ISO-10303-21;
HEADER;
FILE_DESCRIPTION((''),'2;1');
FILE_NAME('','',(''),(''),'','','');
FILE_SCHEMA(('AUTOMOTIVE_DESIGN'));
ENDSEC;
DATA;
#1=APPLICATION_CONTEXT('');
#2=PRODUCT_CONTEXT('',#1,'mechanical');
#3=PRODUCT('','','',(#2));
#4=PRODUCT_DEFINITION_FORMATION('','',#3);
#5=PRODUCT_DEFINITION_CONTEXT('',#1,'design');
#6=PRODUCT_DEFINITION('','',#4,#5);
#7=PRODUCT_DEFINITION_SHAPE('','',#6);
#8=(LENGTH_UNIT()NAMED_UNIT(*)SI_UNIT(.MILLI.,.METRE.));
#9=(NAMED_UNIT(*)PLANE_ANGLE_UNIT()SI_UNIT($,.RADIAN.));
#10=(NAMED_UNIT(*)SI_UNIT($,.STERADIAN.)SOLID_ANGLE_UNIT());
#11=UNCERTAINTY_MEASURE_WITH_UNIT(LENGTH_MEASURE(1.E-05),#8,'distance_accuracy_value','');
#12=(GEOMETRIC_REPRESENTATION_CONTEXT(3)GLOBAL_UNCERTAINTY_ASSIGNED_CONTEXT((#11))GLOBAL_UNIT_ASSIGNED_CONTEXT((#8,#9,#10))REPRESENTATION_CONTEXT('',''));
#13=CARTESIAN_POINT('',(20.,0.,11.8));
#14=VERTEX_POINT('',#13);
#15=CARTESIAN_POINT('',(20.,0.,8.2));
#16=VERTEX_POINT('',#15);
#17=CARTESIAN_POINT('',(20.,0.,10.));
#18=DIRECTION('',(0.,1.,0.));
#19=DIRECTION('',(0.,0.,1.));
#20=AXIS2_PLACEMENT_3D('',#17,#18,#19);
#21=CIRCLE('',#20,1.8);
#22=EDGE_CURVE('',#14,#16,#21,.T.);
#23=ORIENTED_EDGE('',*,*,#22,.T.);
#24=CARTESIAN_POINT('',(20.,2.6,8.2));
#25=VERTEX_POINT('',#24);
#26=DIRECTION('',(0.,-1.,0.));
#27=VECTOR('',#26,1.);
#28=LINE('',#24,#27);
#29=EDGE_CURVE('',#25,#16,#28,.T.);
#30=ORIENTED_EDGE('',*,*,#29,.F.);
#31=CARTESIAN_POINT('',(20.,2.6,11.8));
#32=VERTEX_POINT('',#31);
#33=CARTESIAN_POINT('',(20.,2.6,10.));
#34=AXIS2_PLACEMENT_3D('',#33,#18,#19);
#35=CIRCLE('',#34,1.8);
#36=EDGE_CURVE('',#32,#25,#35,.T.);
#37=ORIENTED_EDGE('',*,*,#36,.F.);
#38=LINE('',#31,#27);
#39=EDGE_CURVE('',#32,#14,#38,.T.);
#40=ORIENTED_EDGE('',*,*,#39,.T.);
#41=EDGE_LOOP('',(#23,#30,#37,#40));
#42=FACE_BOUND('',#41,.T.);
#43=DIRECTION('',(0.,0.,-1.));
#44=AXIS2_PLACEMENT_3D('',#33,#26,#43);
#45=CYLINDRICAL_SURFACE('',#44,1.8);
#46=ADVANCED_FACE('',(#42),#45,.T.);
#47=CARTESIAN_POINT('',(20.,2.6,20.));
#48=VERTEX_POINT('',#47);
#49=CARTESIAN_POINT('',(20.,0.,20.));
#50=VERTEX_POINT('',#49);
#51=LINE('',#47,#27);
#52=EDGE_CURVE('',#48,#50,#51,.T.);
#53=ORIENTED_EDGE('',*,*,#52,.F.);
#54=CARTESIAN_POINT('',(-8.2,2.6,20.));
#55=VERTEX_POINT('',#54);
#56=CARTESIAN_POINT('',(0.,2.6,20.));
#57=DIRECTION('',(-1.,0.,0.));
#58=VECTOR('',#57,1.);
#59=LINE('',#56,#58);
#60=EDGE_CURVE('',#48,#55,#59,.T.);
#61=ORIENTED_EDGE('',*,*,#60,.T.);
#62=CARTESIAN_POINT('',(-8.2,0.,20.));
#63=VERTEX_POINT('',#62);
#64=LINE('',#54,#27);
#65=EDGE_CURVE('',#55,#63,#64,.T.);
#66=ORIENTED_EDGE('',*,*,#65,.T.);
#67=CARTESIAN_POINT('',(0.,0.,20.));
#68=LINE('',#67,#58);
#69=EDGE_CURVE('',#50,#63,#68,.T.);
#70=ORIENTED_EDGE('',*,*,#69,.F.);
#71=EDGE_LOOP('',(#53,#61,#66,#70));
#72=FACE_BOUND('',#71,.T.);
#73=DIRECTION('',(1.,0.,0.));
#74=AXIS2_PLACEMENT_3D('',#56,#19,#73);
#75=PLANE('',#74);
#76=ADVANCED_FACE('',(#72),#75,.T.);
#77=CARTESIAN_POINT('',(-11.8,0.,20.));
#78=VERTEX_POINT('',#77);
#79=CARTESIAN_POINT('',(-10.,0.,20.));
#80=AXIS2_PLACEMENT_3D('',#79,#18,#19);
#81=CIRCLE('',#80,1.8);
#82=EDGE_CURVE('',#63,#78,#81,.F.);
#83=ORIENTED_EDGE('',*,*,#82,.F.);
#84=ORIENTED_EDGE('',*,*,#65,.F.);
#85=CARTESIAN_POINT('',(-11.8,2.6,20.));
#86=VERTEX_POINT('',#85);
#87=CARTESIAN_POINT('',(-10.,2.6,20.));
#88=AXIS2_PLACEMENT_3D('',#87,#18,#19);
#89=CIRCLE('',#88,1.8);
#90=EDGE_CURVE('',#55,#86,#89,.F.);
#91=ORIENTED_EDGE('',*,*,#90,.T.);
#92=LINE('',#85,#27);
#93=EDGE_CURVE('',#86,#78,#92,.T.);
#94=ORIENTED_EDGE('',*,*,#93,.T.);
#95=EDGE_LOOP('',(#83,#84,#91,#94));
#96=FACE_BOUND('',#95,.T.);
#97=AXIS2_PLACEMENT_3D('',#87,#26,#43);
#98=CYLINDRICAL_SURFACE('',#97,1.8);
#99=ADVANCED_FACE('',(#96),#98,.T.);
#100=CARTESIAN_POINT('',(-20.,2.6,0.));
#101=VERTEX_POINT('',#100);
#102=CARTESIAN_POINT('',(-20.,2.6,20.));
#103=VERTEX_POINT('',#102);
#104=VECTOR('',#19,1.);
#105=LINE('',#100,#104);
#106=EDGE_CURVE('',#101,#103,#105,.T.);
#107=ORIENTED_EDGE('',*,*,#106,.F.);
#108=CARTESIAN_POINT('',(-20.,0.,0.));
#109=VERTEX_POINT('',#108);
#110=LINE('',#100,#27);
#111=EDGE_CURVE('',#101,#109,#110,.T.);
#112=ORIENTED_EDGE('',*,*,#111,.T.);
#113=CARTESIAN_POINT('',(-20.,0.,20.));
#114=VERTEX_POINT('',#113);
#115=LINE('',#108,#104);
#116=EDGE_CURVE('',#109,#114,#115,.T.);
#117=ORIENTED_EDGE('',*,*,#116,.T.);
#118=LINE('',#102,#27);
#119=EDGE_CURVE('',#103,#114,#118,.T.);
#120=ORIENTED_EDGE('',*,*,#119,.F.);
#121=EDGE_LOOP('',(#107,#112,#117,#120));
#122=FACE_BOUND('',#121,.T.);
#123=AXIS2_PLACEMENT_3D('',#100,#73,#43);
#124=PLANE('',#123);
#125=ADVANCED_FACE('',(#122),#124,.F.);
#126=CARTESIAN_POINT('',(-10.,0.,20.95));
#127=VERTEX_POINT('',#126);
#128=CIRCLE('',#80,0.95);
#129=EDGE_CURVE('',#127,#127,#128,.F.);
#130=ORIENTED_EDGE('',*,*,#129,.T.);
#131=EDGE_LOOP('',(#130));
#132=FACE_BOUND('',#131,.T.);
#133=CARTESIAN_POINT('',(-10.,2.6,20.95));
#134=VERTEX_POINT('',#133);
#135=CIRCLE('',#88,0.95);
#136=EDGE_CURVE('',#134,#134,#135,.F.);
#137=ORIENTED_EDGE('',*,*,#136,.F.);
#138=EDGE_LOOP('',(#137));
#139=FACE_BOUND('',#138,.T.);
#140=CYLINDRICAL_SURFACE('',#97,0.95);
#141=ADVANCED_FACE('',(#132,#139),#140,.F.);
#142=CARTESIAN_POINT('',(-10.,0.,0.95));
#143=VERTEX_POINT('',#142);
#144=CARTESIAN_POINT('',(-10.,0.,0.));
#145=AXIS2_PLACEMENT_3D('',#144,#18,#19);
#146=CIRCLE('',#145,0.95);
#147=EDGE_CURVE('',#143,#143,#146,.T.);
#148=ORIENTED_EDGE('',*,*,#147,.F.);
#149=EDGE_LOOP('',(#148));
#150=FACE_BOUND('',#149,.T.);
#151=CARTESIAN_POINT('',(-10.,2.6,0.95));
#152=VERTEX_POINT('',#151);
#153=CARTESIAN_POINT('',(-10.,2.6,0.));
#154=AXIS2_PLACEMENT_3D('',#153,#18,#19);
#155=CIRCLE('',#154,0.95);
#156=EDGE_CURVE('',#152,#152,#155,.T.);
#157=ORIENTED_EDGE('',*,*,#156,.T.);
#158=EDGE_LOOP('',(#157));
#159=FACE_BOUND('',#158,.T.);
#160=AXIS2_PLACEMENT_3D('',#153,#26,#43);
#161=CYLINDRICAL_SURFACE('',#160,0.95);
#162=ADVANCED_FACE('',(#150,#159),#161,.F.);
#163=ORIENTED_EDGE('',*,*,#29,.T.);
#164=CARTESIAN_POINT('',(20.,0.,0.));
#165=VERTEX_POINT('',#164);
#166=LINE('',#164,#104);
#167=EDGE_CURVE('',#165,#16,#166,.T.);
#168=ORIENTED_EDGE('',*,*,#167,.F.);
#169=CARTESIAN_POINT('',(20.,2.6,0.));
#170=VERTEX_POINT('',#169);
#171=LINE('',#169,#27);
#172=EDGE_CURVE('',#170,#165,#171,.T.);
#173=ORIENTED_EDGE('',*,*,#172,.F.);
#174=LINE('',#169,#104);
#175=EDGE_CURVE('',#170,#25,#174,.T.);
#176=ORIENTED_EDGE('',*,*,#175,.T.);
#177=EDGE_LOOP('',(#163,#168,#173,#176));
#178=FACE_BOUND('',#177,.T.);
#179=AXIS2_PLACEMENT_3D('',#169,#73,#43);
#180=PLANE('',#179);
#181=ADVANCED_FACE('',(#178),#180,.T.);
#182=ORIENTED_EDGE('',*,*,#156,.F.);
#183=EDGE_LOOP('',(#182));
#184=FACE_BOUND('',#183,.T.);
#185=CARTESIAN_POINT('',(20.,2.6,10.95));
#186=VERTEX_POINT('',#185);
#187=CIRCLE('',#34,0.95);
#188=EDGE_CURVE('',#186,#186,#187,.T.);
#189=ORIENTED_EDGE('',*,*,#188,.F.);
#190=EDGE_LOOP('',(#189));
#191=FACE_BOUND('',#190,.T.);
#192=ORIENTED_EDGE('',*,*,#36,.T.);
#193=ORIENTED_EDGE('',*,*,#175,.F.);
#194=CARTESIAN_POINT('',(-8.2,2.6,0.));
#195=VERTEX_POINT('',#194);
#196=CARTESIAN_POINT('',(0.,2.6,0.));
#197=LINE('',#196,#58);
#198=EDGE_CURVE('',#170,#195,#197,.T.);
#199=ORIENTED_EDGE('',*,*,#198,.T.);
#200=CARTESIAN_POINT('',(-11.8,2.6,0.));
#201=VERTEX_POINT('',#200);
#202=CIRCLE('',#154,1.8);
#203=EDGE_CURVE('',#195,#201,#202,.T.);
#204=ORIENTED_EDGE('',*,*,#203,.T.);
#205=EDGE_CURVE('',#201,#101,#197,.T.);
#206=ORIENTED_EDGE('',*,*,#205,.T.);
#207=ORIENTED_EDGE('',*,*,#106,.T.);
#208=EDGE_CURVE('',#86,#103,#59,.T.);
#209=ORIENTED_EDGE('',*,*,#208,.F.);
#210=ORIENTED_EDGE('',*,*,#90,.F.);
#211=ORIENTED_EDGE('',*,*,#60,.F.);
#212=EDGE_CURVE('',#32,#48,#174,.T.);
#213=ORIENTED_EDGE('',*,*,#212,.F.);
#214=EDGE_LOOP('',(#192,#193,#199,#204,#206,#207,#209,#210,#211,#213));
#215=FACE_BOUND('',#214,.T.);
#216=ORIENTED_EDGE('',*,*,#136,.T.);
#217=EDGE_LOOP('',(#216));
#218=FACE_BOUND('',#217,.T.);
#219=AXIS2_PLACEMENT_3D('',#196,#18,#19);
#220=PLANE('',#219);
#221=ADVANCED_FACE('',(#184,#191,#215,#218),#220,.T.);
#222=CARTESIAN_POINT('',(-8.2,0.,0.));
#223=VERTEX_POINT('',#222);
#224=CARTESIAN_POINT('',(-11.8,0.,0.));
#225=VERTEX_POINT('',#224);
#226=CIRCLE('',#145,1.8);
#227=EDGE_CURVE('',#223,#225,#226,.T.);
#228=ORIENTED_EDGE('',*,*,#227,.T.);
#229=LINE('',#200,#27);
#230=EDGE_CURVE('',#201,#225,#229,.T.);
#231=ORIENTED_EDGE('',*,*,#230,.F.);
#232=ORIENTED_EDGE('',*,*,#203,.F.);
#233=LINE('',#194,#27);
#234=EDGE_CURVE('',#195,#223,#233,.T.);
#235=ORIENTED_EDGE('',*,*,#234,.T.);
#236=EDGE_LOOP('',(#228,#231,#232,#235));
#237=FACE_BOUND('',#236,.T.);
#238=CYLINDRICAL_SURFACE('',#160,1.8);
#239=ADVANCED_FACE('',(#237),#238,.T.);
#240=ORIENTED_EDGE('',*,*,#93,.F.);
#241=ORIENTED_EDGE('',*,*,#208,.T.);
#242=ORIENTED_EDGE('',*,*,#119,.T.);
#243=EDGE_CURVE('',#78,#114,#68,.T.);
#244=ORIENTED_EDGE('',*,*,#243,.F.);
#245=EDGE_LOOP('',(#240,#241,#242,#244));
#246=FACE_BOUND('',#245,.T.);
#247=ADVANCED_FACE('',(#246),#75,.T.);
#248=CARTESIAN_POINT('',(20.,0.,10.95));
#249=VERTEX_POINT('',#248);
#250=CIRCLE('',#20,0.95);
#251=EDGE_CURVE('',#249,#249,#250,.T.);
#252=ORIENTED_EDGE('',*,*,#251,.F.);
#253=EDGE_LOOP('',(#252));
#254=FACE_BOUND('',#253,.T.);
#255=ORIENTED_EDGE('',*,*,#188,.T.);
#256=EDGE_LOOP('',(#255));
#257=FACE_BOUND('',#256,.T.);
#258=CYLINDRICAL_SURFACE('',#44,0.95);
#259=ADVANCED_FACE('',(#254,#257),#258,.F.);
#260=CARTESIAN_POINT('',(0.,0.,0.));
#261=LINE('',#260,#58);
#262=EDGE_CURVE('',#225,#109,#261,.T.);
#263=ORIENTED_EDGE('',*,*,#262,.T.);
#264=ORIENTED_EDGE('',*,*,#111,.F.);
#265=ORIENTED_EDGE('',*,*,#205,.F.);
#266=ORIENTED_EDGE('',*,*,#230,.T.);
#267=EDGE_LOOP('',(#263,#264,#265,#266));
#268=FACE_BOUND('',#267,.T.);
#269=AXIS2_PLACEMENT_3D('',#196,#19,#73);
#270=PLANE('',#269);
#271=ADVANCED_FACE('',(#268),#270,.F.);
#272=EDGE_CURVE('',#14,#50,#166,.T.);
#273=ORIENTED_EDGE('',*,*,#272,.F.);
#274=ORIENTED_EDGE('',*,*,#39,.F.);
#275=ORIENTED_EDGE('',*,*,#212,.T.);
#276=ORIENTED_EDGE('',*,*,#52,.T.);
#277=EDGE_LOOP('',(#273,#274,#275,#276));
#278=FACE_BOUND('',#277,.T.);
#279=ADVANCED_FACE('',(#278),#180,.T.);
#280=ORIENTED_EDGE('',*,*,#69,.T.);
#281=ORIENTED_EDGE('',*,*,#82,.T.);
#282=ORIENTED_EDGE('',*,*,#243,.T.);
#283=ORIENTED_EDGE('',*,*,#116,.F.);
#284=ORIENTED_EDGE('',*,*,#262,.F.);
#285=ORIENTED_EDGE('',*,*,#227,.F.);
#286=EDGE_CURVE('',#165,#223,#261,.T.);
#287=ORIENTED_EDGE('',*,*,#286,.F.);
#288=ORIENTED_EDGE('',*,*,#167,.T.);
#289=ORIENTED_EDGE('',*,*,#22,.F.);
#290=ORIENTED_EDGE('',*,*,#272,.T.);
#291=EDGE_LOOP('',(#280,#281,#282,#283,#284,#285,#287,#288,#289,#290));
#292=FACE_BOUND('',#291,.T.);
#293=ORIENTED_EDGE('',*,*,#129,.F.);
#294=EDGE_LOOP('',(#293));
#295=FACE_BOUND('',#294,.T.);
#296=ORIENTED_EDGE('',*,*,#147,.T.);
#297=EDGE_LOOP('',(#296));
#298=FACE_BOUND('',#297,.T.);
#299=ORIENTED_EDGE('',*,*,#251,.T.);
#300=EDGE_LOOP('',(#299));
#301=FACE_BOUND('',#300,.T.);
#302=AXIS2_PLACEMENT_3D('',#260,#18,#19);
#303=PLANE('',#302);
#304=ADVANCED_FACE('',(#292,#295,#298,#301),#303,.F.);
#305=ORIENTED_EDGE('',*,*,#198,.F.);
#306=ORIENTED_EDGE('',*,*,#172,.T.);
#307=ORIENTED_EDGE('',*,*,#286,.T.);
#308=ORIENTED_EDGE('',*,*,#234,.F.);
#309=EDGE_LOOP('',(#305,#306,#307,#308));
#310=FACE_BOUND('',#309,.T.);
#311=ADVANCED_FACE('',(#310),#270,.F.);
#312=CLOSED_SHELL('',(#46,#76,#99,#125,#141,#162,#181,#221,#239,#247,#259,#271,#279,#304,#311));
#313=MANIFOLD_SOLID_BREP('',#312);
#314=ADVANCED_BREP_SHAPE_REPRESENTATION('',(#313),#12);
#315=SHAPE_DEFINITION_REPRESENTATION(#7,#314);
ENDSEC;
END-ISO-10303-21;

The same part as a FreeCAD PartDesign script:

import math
import FreeCAD as App
import Part
import Sketcher
from FreeCAD import Vector

doc = App.newDocument("Part")
body = doc.addObject("PartDesign::Body", "Body")

sketch1 = body.newObject("Sketcher::SketchObject", "Sketch")
sketch1.AttachmentSupport = (doc.getObject("XZ_Plane"), [""])
sketch1.MapMode = "FlatFace"
sketch1.addGeometry([
    Part.LineSegment(Vector(20, 8.2, 0), Vector(20, 0, 0)),
    Part.LineSegment(Vector(20, 0, 0), Vector(-8.2, 0, 0)),
    Part.ArcOfCircle(Part.Circle(Vector(-10, 0, 0), Vector(0, 0, 1), 1.8), math.radians(180), math.radians(360)),
    Part.LineSegment(Vector(-11.8, 0, 0), Vector(-20, 0, 0)),
    Part.LineSegment(Vector(-20, 0, 0), Vector(-20, 20, 0)),
    Part.LineSegment(Vector(-20, 20, 0), Vector(-11.8, 20, 0)),
    Part.ArcOfCircle(Part.Circle(Vector(-10, 20, 0), Vector(0, 0, 1), 1.8), math.radians(0), math.radians(180)),
    Part.LineSegment(Vector(-8.2, 20, 0), Vector(20, 20, 0)),
    Part.LineSegment(Vector(20, 20, 0), Vector(20, 11.8, 0)),
    Part.ArcOfCircle(Part.Circle(Vector(20, 10, 0), Vector(0, 0, 1), 1.8), math.radians(-90), math.radians(90)),
    Part.Circle(Vector(-10, 20, 0), Vector(0, 0, 1), 0.95),
    Part.Circle(Vector(-10, 0, 0), Vector(0, 0, 1), 0.95),
    Part.Circle(Vector(20, 10, 0), Vector(0, 0, 1), 0.95),
], False)
sketch1.addConstraint([
    Sketcher.Constraint("Coincident", 0, 2, 1, 1),
    Sketcher.Constraint("Coincident", 1, 2, 2, 2),
    Sketcher.Constraint("Coincident", 2, 1, 3, 1),
    Sketcher.Constraint("Coincident", 3, 2, 4, 1),
    Sketcher.Constraint("Coincident", 4, 2, 5, 1),
    Sketcher.Constraint("Coincident", 5, 2, 6, 2),
    Sketcher.Constraint("Coincident", 6, 1, 7, 1),
    Sketcher.Constraint("Coincident", 7, 2, 8, 1),
    Sketcher.Constraint("Coincident", 8, 2, 9, 2),
    Sketcher.Constraint("Coincident", 9, 1, 0, 1),
    Sketcher.Constraint("Vertical", 0),
    Sketcher.Constraint("Horizontal", 1),
    Sketcher.Constraint("Horizontal", 3),
    Sketcher.Constraint("Vertical", 4),
    Sketcher.Constraint("Horizontal", 5),
    Sketcher.Constraint("Horizontal", 7),
    Sketcher.Constraint("Vertical", 8),
    Sketcher.Constraint("Coincident", 10, 3, 6, 3),
    Sketcher.Constraint("Coincident", 11, 3, 2, 3),
    Sketcher.Constraint("Coincident", 12, 3, 9, 3),
    Sketcher.Constraint("Equal", 2, 6),
    Sketcher.Constraint("Equal", 6, 9),
    Sketcher.Constraint("Equal", 10, 11),
    Sketcher.Constraint("Equal", 11, 12),
    Sketcher.Constraint("Symmetric", 0, 2, 3, 2, -1, 1),
    Sketcher.Constraint("Symmetric", 4, 2, 7, 2, -2),
    Sketcher.Constraint("PointOnObject", 2, 3, -1),
    Sketcher.Constraint("PointOnObject", 0, 2, -1),
    Sketcher.Constraint("Horizontal", 10, 3, 4, 2),
    Sketcher.Constraint("Vertical", 2, 3, 6, 3),
    Sketcher.Constraint("Vertical", 12, 3, 0, 2),
    Sketcher.Constraint("Equal", 5, 0),
    Sketcher.Constraint("Equal", 0, 8),
    Sketcher.Constraint("Diameter", 10, 1.9),
    Sketcher.Constraint("Radius", 2, 1.8),
    Sketcher.Constraint("DistanceY", 4, 1, 4, 2, 20.0),
    Sketcher.Constraint("DistanceX", 1, 2, 1, 1, 28.2),
])
pad1 = body.newObject("PartDesign::Pad", "Pad")
pad1.Profile = sketch1
pad1.Length = 2.6
pad1.Reversed = True

doc.recompute()
